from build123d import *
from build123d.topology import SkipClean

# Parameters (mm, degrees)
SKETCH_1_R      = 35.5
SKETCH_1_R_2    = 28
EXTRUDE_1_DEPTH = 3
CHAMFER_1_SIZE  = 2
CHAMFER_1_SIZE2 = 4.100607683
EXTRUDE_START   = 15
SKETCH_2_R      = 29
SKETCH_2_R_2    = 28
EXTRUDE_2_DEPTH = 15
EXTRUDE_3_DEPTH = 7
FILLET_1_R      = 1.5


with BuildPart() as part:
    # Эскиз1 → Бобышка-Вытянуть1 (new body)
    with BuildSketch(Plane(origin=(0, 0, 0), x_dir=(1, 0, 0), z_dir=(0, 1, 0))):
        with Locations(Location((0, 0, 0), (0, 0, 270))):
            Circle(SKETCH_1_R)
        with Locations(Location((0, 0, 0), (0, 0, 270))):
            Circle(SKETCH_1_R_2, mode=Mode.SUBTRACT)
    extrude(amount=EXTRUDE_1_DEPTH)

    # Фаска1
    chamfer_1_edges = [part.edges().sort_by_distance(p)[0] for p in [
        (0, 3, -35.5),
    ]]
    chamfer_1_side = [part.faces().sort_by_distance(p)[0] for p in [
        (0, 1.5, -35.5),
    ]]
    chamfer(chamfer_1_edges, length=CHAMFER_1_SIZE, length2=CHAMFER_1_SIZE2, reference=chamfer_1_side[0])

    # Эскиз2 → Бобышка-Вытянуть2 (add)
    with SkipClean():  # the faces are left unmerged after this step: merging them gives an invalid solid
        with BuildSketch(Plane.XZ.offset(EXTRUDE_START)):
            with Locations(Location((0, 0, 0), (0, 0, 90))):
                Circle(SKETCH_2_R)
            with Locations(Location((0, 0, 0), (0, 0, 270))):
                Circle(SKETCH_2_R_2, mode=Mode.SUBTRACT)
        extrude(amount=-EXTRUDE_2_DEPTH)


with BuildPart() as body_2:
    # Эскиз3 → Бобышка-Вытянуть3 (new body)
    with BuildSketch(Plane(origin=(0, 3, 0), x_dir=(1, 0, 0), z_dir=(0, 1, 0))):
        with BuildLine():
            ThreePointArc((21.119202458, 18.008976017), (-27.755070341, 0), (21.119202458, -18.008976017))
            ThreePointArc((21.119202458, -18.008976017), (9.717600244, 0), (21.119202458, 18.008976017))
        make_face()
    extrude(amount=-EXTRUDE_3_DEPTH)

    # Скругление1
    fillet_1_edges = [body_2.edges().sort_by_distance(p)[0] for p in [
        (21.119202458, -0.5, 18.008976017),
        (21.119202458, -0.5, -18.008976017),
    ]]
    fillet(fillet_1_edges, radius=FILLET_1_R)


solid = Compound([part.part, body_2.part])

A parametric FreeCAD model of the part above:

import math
import FreeCAD as App
import Part
import Sketcher
from FreeCAD import Vector


def edges_at(feature, points):
    """Names of the edges that pass closest to the given points."""
    edges = feature.Shape.Edges
    near = lambda p: min(range(len(edges)), key=lambda i: edges[i].distToShape(Part.Vertex(*p))[0])
    return sorted({f"Edge{near(p) + 1}" for p in points})

doc = App.newDocument("Part")
params = doc.addObject("Spreadsheet::Sheet", "Params")
for row, (alias, value) in enumerate([
    ("sketch1_diameter", "71 mm"),
    ("sketch1_diameter2", "56 mm"),
    ("pad1_length", "3 mm"),
    ("chamfer_size", "2 mm"),
    ("chamfer_size2", "4.100608 mm"),
    ("sketch2_diameter", "58 mm"),
    ("sketch2_diameter2", "56 mm"),
    ("pad2_length", "15 mm"),
    ("pad3_length", "7 mm"),
    ("fillet_radius", "1.5 mm"),
], start=1):
    params.set(f"A{row}", alias)
    params.set(f"B{row}", "=" + value)
    params.setAlias(f"B{row}", alias)

body = doc.addObject("PartDesign::Body", "Body")

sketch1 = body.newObject("Sketcher::SketchObject", "Sketch")
sketch1.AttachmentSupport = (doc.getObject("XZ_Plane"), [""])
sketch1.MapMode = "FlatFace"
sketch1.addGeometry([
    Part.Circle(Vector(0, 0, 0), Vector(0, 0, 1), 35.5),
    Part.Circle(Vector(0, 0, 0), Vector(0, 0, 1), 28),
], False)
sketch1.addConstraint([
    Sketcher.Constraint("Coincident", 0, 3, -1, 1),
    Sketcher.Constraint("Coincident", 1, 3, -1, 1),
    Sketcher.Constraint("Diameter", 0, 71.0),
    Sketcher.Constraint("Diameter", 1, 56.0),
])
sketch1.setExpression("Constraints[2]", "Params.sketch1_diameter")
sketch1.setExpression("Constraints[3]", "Params.sketch1_diameter2")
pad1 = body.newObject("PartDesign::Pad", "Pad")
pad1.Profile = sketch1
pad1.setExpression("Length", "Params.pad1_length")
pad1.Reversed = True
doc.recompute()

chamfer = body.newObject("PartDesign::Chamfer", "Chamfer")
chamfer.Base = (pad1, edges_at(pad1, [(0, 3, -35.5)]))
chamfer.ChamferType = "Two distances"
chamfer.setExpression("Size", "Params.chamfer_size")
chamfer.setExpression("Size2", "Params.chamfer_size2")

sketch2 = body.newObject("Sketcher::SketchObject", "Sketch001")
sketch2.AttachmentSupport = (doc.getObject("XZ_Plane"), [""])
sketch2.MapMode = "FlatFace"
sketch2.AttachmentOffset = App.Placement(Vector(0, 0, 15), App.Rotation())
sketch2.addGeometry([
    Part.Circle(Vector(0, 0, 0), Vector(0, 0, 1), 29),
    Part.Circle(Vector(0, 0, 0), Vector(0, 0, 1), 28),
], False)
sketch2.addConstraint([
    Sketcher.Constraint("Coincident", 0, 3, -1, 1),
    Sketcher.Constraint("Coincident", 1, 3, -1, 1),
    Sketcher.Constraint("Diameter", 0, 58.0),
    Sketcher.Constraint("Diameter", 1, 56.0),
])
sketch2.setExpression("Constraints[2]", "Params.sketch2_diameter")
sketch2.setExpression("Constraints[3]", "Params.sketch2_diameter2")
pad2 = body.newObject("PartDesign::Pad", "Pad001")
pad2.Profile = sketch2
pad2.setExpression("Length", "Params.pad2_length")
pad2.Reversed = True
body2 = doc.addObject("PartDesign::Body", "Body001")

sketch3 = body2.newObject("Sketcher::SketchObject", "Sketch002")
sketch3.AttachmentSupport = (doc.getObject("XZ_Plane001"), [""])
sketch3.MapMode = "FlatFace"
sketch3.AttachmentOffset = App.Placement(Vector(0, 0, -3), App.Rotation())
sketch3.addGeometry([
    Part.ArcOfCircle(Part.Circle(Vector(0, 0, 0), Vector(0, 0, 1), 27.75507), math.radians(40.45522), math.radians(319.54478)),
    Part.ArcOfCircle(Part.Circle(Vector(29.641105, 0, 0), Vector(0, 0, 1), 19.923505), math.radians(115.323656), math.radians(244.676344)),
], False)
sketch3.addConstraint([
    Sketcher.Constraint("Coincident", 0, 1, 1, 1),
    Sketcher.Constraint("Coincident", 1, 2, 0, 2),
    Sketcher.Constraint("Coincident", 0, 3, -1, 1),
    Sketcher.Constraint("PointOnObject", 1, 3, -1),
    Sketcher.Constraint("Radius", 0, 27.75507),
    Sketcher.Constraint("Radius", 1, 19.923505),
    Sketcher.Constraint("DistanceX", -1, 1, 1, 3, 29.641105),
])
pad3 = body2.newObject("PartDesign::Pad", "Pad002")
pad3.Profile = sketch3
pad3.setExpression("Length", "Params.pad3_length")
doc.recompute()

fillet = body2.newObject("PartDesign::Fillet", "Fillet")
fillet.Base = (pad3, edges_at(pad3, [(21.119, -0.5, 18.009), (21.119, -0.5, -18.009)]))
fillet.setExpression("Radius", "Params.fillet_radius")

doc.recompute()
